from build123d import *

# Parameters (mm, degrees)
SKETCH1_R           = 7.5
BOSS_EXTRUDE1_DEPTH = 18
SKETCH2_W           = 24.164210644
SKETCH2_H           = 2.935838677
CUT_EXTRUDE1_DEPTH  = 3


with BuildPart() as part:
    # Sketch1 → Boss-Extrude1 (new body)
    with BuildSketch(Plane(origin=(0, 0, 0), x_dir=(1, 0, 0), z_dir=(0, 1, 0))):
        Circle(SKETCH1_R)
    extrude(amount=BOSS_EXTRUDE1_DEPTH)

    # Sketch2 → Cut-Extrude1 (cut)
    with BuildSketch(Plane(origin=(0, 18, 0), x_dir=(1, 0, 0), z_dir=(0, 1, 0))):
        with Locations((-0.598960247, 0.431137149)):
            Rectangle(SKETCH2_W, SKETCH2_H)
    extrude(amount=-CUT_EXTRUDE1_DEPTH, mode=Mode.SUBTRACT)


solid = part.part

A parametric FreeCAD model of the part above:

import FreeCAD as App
import Part
import Sketcher

V = App.Vector


def add_polygon(sketch, points):
    """Adds a closed chain of lines whose ends are joined by coincident constraints."""
    first, n = sketch.GeometryCount, len(points)
    for a, b in zip(points, points[1:] + points[:1]):
        sketch.addGeometry(Part.LineSegment(App.Vector(*a, 0), App.Vector(*b, 0)), False)
    for i in range(n):
        sketch.addConstraint(Sketcher.Constraint("Coincident", first + i, 2, first + (i + 1) % n, 1))

doc = App.newDocument("Part")
body = doc.addObject("PartDesign::Body", "Body")

sketch1 = body.newObject("Sketcher::SketchObject", "Sketch")
sketch1.AttachmentSupport = (doc.getObject("XZ_Plane"), [""])
sketch1.MapMode = "FlatFace"
sketch1.addGeometry(Part.Circle(V(0, 0, 0), V(0, 0, 1), 8), False)
sketch1.addConstraint([
    Sketcher.Constraint("Coincident", 0, 3, -1, 1),
    Sketcher.Constraint("Diameter", 0, 15.0),
])
pad1 = body.newObject("PartDesign::Pad", "Pad")
pad1.Profile = sketch1
pad1.Length = 18
pad1.Reversed = True

sketch2 = body.newObject("Sketcher::SketchObject", "Sketch001")
sketch2.AttachmentSupport = (doc.getObject("XZ_Plane"), [""])
sketch2.MapMode = "FlatFace"
sketch2.AttachmentOffset = App.Placement(V(0, 0, -18), App.Rotation())
add_polygon(sketch2, [(-12.7, -1.9), (-12.7, 1), (11.5, 1), (11.5, -1.9)])
sketch2.addConstraint([
    Sketcher.Constraint("Vertical", 0),
    Sketcher.Constraint("Horizontal", 1),
    Sketcher.Constraint("Vertical", 2),
    Sketcher.Constraint("Horizontal", 3),
    Sketcher.Constraint("DistanceX", 1, 1, 1, 2, 24.164211),
    Sketcher.Constraint("DistanceY", 0, 1, 0, 2, 2.935839),
    Sketcher.Constraint("DistanceX", 0, 2, -1, 1, 12.681066),
    Sketcher.Constraint("DistanceY", -1, 1, 0, 2, 1.036782),
])
pocket1 = body.newObject("PartDesign::Pocket", "Pocket")
pocket1.Profile = sketch2
pocket1.Length = 3
pocket1.Reversed = True

doc.recompute()
